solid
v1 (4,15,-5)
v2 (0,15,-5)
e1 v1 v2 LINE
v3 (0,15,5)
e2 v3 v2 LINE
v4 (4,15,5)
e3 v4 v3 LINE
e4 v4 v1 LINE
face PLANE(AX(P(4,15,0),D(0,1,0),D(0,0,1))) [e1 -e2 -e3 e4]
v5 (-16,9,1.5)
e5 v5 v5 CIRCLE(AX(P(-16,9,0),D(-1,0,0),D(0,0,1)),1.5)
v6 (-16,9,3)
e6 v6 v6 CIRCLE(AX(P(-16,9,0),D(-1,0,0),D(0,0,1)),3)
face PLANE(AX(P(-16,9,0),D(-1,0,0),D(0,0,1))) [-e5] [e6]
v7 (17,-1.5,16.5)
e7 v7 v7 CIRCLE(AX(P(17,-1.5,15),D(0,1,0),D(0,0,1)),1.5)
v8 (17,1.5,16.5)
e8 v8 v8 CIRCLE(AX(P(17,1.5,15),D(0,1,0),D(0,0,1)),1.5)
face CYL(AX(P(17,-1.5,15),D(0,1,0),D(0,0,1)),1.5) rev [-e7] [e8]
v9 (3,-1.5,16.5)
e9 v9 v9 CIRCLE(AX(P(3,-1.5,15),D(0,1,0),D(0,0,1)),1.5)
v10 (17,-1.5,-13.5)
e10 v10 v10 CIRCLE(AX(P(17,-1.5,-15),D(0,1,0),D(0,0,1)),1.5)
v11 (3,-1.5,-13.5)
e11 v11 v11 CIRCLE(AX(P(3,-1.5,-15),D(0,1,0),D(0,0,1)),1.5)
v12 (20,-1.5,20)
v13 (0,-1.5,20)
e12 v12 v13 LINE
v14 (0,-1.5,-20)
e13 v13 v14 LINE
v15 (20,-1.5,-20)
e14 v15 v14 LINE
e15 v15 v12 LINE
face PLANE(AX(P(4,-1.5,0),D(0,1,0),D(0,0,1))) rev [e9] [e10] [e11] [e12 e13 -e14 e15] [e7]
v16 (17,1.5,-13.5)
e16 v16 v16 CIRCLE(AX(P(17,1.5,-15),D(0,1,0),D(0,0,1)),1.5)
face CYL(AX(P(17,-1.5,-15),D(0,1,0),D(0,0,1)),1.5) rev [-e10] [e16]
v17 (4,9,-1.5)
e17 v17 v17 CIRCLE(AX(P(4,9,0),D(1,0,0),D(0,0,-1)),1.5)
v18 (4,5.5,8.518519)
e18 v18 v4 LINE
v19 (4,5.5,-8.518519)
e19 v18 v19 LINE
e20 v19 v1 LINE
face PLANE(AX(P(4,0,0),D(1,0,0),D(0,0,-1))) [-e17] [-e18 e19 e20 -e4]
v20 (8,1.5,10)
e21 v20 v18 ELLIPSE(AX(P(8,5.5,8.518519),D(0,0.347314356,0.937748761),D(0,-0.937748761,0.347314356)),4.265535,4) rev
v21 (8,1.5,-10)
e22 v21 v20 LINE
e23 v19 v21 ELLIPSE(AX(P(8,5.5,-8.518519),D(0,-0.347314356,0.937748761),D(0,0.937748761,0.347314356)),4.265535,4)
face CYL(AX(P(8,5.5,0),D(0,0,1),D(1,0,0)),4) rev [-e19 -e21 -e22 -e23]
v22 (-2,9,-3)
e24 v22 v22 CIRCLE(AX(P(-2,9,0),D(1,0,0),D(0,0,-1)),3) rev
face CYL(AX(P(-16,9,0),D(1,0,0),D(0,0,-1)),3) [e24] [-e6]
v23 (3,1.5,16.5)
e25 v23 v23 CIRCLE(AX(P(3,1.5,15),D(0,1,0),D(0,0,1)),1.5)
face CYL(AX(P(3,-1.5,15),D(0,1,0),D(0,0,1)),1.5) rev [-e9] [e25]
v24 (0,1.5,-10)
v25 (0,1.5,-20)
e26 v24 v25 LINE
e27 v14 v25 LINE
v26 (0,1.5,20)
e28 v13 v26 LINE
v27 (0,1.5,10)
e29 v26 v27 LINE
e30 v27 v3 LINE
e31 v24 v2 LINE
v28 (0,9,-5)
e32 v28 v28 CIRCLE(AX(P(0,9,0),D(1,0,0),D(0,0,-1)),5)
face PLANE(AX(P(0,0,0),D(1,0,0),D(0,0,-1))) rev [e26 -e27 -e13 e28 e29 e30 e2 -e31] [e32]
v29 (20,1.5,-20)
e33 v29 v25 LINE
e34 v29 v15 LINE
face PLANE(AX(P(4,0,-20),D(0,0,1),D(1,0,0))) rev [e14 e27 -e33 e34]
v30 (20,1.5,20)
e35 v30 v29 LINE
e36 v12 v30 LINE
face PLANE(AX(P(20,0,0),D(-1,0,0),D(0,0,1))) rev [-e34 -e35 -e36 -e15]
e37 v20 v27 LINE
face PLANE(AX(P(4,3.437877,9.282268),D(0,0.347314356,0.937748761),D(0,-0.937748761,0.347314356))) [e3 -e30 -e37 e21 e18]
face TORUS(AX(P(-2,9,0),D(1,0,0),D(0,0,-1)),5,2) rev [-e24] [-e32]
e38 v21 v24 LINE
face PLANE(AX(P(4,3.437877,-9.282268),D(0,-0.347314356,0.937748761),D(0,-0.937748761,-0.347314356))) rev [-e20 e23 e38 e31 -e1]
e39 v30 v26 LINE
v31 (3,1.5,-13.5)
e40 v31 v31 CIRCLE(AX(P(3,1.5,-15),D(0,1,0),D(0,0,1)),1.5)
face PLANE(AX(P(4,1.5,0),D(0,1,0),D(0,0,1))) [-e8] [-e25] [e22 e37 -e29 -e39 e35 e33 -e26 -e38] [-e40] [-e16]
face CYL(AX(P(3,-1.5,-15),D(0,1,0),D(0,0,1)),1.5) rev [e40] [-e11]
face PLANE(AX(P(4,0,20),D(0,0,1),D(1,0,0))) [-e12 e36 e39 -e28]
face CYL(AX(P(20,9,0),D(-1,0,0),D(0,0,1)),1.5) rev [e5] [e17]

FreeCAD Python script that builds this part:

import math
import FreeCAD as App
import Part
import Sketcher
from FreeCAD import Vector


def edges_at(feature, points):
    """Names of the edges that pass closest to the given points."""
    edges = feature.Shape.Edges
    near = lambda p: min(range(len(edges)), key=lambda i: edges[i].distToShape(Part.Vertex(*p))[0])
    return sorted({f"Edge{near(p) + 1}" for p in points})


def add_polygon(sketch, points):
    """Adds a closed chain of lines whose ends are joined by coincident constraints."""
    first, n = sketch.GeometryCount, len(points)
    for a, b in zip(points, points[1:] + points[:1]):
        sketch.addGeometry(Part.LineSegment(App.Vector(*a, 0), App.Vector(*b, 0)), False)
    for i in range(n):
        sketch.addConstraint(Sketcher.Constraint("Coincident", first + i, 2, first + (i + 1) % n, 1))

doc = App.newDocument("Part")
body = doc.addObject("PartDesign::Body", "Body")

# Sketch on YZ plane
sketch1 = body.newObject("Sketcher::SketchObject", "Sketch")
sketch1.AttachmentSupport = (doc.getObject("YZ_Plane"), [""])
sketch1.MapMode = "FlatFace"
add_polygon(sketch1, [(15, 5), (1.5, 10), (1.5, 20), (-1.5, 20), (-1.5, -20), (1.5, -20), (1.5, -10), (15, -5)])  # lines 0-7
sketch1.addConstraint(Sketcher.Constraint("Vertical", 1))
sketch1.addConstraint(Sketcher.Constraint("Horizontal", 2))
sketch1.addConstraint(Sketcher.Constraint("Vertical", 3))
sketch1.addConstraint(Sketcher.Constraint("Horizontal", 4))
sketch1.addConstraint(Sketcher.Constraint("Vertical", 5))
sketch1.addConstraint(Sketcher.Constraint("Vertical", 7))
sketch1.addConstraint(Sketcher.Constraint("Symmetric", 1, 2, 3, 2, -1, 1))
sketch1.addConstraint(Sketcher.Constraint("Symmetric", 0, 2, 5, 2, -1))
sketch1.addConstraint(Sketcher.Constraint("Equal", 5, 7))
sketch1.addConstraint(Sketcher.Constraint("Equal", 0, 6))
sketch1.addConstraint(Sketcher.Constraint("DistanceX", 2, 2, 2, 1, 3.0))
sketch1.addConstraint(Sketcher.Constraint("DistanceY", 1, 1, 1, 2, 10.0))
sketch1.addConstraint(Sketcher.Constraint("DistanceY", 3, 2, 3, 1, 40.0))
sketch1.addConstraint(Sketcher.Constraint("DistanceX", -1, 1, 6, 2, 15.0))
pad1 = body.newObject("PartDesign::Pad", "Pad")
pad1.Profile = sketch1
pad1.Length = 4

# Sketch on YZ plane
sketch2 = body.newObject("Sketcher::SketchObject", "Sketch001")
sketch2.AttachmentSupport = (doc.getObject("YZ_Plane"), [""])
sketch2.MapMode = "FlatFace"
sketch2.AttachmentOffset = App.Placement(Vector(0, 0, 4), App.Rotation())
add_polygon(sketch2, [(1.5, 20), (-1.5, 20), (-1.5, -20), (1.5, -20)])  # lines 0-3
sketch2.addConstraint(Sketcher.Constraint("Horizontal", 0))
sketch2.addConstraint(Sketcher.Constraint("Vertical", 1))
sketch2.addConstraint(Sketcher.Constraint("Horizontal", 2))
sketch2.addConstraint(Sketcher.Constraint("Vertical", 3))
sketch2.addConstraint(Sketcher.Constraint("Symmetric", 0, 2, 2, 2, -1, 1))
sketch2.addConstraint(Sketcher.Constraint("DistanceX", 0, 2, 0, 1, 3.0))
sketch2.addConstraint(Sketcher.Constraint("DistanceY", 1, 2, 1, 1, 40.0))
pad2 = body.newObject("PartDesign::Pad", "Pad001")
pad2.Profile = sketch2
pad2.Length = 16

# Sketch on YZ plane
sketch3 = body.newObject("Sketcher::SketchObject", "Sketch002")
sketch3.AttachmentSupport = (doc.getObject("YZ_Plane"), [""])
sketch3.MapMode = "FlatFace"
sketch3.addGeometry(Part.Circle(Vector(9, 0, 0), Vector(0, 0, 1), 3), False)
sketch3.addConstraint(Sketcher.Constraint("PointOnObject", 0, 3, -1))
sketch3.addConstraint(Sketcher.Constraint("Diameter", 0, 6.0))
sketch3.addConstraint(Sketcher.Constraint("DistanceX", -1, 1, 0, 3, 9.0))
pad3 = body.newObject("PartDesign::Pad", "Pad002")
pad3.Profile = sketch3
pad3.Length = 16
pad3.Reversed = True

# Sketch on YZ plane
sketch4 = body.newObject("Sketcher::SketchObject", "Sketch003")
sketch4.AttachmentSupport = (doc.getObject("YZ_Plane"), [""])
sketch4.MapMode = "FlatFace"
sketch4.AttachmentOffset = App.Placement(Vector(0, 0, -16), App.Rotation())
sketch4.addGeometry(Part.Circle(Vector(9, 0, 0), Vector(0, 0, 1), 1.5), False)
sketch4.addConstraint(Sketcher.Constraint("PointOnObject", 0, 3, -1))
sketch4.addConstraint(Sketcher.Constraint("Diameter", 0, 3.0))
sketch4.addConstraint(Sketcher.Constraint("DistanceX", -1, 1, 0, 3, 9.0))
pocket1 = body.newObject("PartDesign::Pocket", "Pocket")
pocket1.Profile = sketch4
pocket1.Type = "ThroughAll"
pocket1.Reversed = True

# Sketch on XZ plane
sketch5 = body.newObject("Sketcher::SketchObject", "Sketch004")
sketch5.AttachmentSupport = (doc.getObject("XZ_Plane"), [""])
sketch5.MapMode = "FlatFace"
sketch5.AttachmentOffset = App.Placement(Vector(0, 0, -1.5), App.Rotation())
sketch5.addGeometry(Part.ArcOfCircle(Part.Circle(Vector(17, -15, 0), Vector(0, 0, 1), 1.5), math.radians(180), math.radians(360)), False)
sketch5.addGeometry(Part.ArcOfCircle(Part.Circle(Vector(17, -15, 0), Vector(0, 0, 1), 1.5), math.radians(90), math.radians(180)), False)
sketch5.addGeometry(Part.ArcOfCircle(Part.Circle(Vector(17, -15, 0), Vector(0, 0, 1), 1.5), math.radians(0), math.radians(90)), False)
sketch5.addGeometry(Part.ArcOfCircle(Part.Circle(Vector(17, 15, 0), Vector(0, 0, 1), 1.5), math.radians(-90), math.radians(0)), False)
sketch5.addGeometry(Part.ArcOfCircle(Part.Circle(Vector(17, 15, 0), Vector(0, 0, 1), 1.5), math.radians(180), math.radians(270)), False)
sketch5.addGeometry(Part.ArcOfCircle(Part.Circle(Vector(17, 15, 0), Vector(0, 0, 1), 1.5), math.radians(0), math.radians(180)), False)
sketch5.addGeometry(Part.ArcOfCircle(Part.Circle(Vector(3, 15, 0), Vector(0, 0, 1), 1.5), math.radians(-90), math.radians(0)), False)
sketch5.addGeometry(Part.ArcOfCircle(Part.Circle(Vector(3, 15, 0), Vector(0, 0, 1), 1.5), math.radians(0), math.radians(270)), False)
sketch5.addGeometry(Part.Circle(Vector(3, -15, 0), Vector(0, 0, 1), 1.5), False)
sketch5.addConstraint(Sketcher.Constraint("Tangent", 0, 1, 1, 2))
sketch5.addConstraint(Sketcher.Constraint("Tangent", 1, 1, 2, 2))
sketch5.addConstraint(Sketcher.Constraint("Tangent", 2, 1, 0, 2))
sketch5.addConstraint(Sketcher.Constraint("Tangent", 3, 1, 4, 2))
sketch5.addConstraint(Sketcher.Constraint("Tangent", 4, 1, 5, 2))
sketch5.addConstraint(Sketcher.Constraint("Tangent", 5, 1, 3, 2))
sketch5.addConstraint(Sketcher.Constraint("Tangent", 6, 1, 7, 2))
sketch5.addConstraint(Sketcher.Constraint("Coincident", 7, 1, 6, 2))
sketch5.addConstraint(Sketcher.Constraint("Equal", 2, 3))
sketch5.addConstraint(Sketcher.Constraint("Equal", 5, 6))
sketch5.addConstraint(Sketcher.Constraint("Equal", 7, 8))
sketch5.addConstraint(Sketcher.Constraint("Symmetric", 0, 3, 3, 3, -1))
sketch5.addConstraint(Sketcher.Constraint("Symmetric", 6, 3, 8, 3, -1))
sketch5.addConstraint(Sketcher.Constraint("Horizontal", 5, 3, 6, 3))
sketch5.addConstraint(Sketcher.Constraint("Horizontal", 8, 3, 0, 1))
sketch5.addConstraint(Sketcher.Constraint("Horizontal", 0, 1, 2, 1))
sketch5.addConstraint(Sketcher.Constraint("Horizontal", 7, 3, 4, 1))
sketch5.addConstraint(Sketcher.Constraint("Horizontal", 4, 1, 5, 1))
sketch5.addConstraint(Sketcher.Constraint("Horizontal", 5, 1, 7, 1))
sketch5.addConstraint(Sketcher.Constraint("Vertical", 5, 3, 1, 1))
sketch5.addConstraint(Sketcher.Constraint("Vertical", 1, 1, 3, 1))
sketch5.addConstraint(Sketcher.Constraint("Vertical", 8, 3, 6, 1))
sketch5.addConstraint(Sketcher.Constraint("Diameter", 8, 3.0))
sketch5.addConstraint(Sketcher.Constraint("DistanceX", -1, 1, 0, 3, 17.0))
sketch5.addConstraint(Sketcher.Constraint("DistanceY", 0, 3, -1, 1, 15.0))
sketch5.addConstraint(Sketcher.Constraint("DistanceX", -1, 1, 6, 3, 3.0))
pocket2 = body.newObject("PartDesign::Pocket", "Pocket001")
pocket2.Profile = sketch5
pocket2.Type = "ThroughAll"
pocket2.Reversed = True
doc.recompute()

fillet = body.newObject("PartDesign::Fillet", "Fillet")
fillet.Base = (pocket2, edges_at(pocket2, [(4, 1.5, 0)]))
fillet.Radius = 4
doc.recompute()

fillet2 = body.newObject("PartDesign::Fillet", "Fillet001")
fillet2.Base = (fillet, edges_at(fillet, [(0, 9, -3)]))
fillet2.Radius = 2

doc.recompute()
